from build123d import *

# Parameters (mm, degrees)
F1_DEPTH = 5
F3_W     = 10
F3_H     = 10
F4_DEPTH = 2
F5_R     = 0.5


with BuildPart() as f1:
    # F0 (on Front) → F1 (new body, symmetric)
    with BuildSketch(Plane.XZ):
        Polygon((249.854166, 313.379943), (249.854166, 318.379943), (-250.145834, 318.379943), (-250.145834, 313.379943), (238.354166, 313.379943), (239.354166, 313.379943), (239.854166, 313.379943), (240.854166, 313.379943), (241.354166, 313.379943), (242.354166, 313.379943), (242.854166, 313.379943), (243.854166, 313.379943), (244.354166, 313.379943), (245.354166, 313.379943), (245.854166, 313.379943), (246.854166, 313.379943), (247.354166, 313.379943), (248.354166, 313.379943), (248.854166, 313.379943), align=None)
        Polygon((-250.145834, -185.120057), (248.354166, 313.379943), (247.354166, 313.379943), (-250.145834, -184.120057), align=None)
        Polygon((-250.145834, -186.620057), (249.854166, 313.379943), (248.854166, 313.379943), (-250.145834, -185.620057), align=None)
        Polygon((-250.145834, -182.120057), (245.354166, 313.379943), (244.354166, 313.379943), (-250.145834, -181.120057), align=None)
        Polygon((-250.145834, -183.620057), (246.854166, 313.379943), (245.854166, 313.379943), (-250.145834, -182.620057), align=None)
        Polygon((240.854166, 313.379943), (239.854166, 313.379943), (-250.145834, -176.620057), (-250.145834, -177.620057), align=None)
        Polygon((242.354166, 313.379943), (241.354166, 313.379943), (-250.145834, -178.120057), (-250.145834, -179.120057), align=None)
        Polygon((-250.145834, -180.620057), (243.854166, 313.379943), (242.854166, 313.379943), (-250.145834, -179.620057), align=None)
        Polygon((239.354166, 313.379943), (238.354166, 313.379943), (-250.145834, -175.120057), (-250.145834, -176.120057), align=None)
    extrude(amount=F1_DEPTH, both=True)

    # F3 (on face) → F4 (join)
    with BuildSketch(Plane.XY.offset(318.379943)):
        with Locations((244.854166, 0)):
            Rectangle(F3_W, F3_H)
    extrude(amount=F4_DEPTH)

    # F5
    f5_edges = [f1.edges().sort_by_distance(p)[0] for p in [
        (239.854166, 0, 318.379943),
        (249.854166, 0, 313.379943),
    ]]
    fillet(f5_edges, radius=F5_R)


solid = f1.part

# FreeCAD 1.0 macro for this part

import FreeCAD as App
import Part
import Sketcher
from FreeCAD import Vector
Q = App.Units.Quantity


def edges_at(feature, points):
    """Names of the edges that pass closest to the given points."""
    edges = feature.Shape.Edges
    near = lambda p: min(range(len(edges)), key=lambda i: edges[i].distToShape(Part.Vertex(*p))[0])
    return sorted({f"Edge{near(p) + 1}" for p in points})


def add_polygon(sketch, points):
    """Adds a closed chain of lines whose ends are joined by coincident constraints."""
    first, n = sketch.GeometryCount, len(points)
    for a, b in zip(points, points[1:] + points[:1]):
        sketch.addGeometry(Part.LineSegment(App.Vector(*a, 0), App.Vector(*b, 0)), False)
    for i in range(n):
        sketch.addConstraint(Sketcher.Constraint("Coincident", first + i, 2, first + (i + 1) % n, 1))

doc = App.newDocument("Part")
body = doc.addObject("PartDesign::Body", "Body")

sketch1 = body.newObject("Sketcher::SketchObject", "Sketch")
sketch1.AttachmentSupport = (doc.getObject("XZ_Plane"), [""])
sketch1.MapMode = "FlatFace"
add_polygon(sketch1, [(249.9, 313.4), (249.9, 318.4), (-250.1, 318.4), (-250.1, 313.4), (238.4, 313.4), (-250.1, -175.1), (-250.1, -176.1), (239.4, 313.4), (239.9, 313.4), (-250.1, -176.6), (-250.1, -177.6), (240.9, 313.4), (241.4, 313.4), (-250.1, -178.1), (-250.1, -179.1), (242.4, 313.4), (242.9, 313.4), (-250.1, -179.6), (-250.1, -180.6), (243.9, 313.4), (244.4, 313.4), (-250.1, -181.1), (-250.1, -182.1), (245.4, 313.4), (245.9, 313.4), (-250.1, -182.6), (-250.1, -183.6), (246.9, 313.4), (247.4, 313.4), (-250.1, -184.1), (-250.1, -185.1), (248.4, 313.4), (248.9, 313.4), (-250.1, -185.6), (-250.1, -186.6)])
sketch1.addConstraint([
    Sketcher.Constraint("Vertical", 0),
    Sketcher.Constraint("Horizontal", 1),
    Sketcher.Constraint("Vertical", 2),
    Sketcher.Constraint("Horizontal", 3),
    Sketcher.Constraint("Vertical", 5),
    Sketcher.Constraint("Horizontal", 7),
    Sketcher.Constraint("Vertical", 9),
    Sketcher.Constraint("Horizontal", 11),
    Sketcher.Constraint("Vertical", 13),
    Sketcher.Constraint("Horizontal", 15),
    Sketcher.Constraint("Vertical", 17),
    Sketcher.Constraint("Horizontal", 19),
    Sketcher.Constraint("Vertical", 21),
    Sketcher.Constraint("Horizontal", 23),
    Sketcher.Constraint("Vertical", 25),
    Sketcher.Constraint("Horizontal", 27),
    Sketcher.Constraint("Vertical", 29),
    Sketcher.Constraint("Horizontal", 31),
    Sketcher.Constraint("Vertical", 33),
    Sketcher.Constraint("Parallel", 4, 6),
    Sketcher.Constraint("Parallel", 6, 8),
    Sketcher.Constraint("Parallel", 8, 10),
    Sketcher.Constraint("Parallel", 10, 12),
    Sketcher.Constraint("Parallel", 12, 14),
    Sketcher.Constraint("Parallel", 14, 16),
    Sketcher.Constraint("Parallel", 16, 18),
    Sketcher.Constraint("Parallel", 18, 20),
    Sketcher.Constraint("Parallel", 20, 22),
    Sketcher.Constraint("Parallel", 22, 24),
    Sketcher.Constraint("Parallel", 24, 26),
    Sketcher.Constraint("Parallel", 26, 28),
    Sketcher.Constraint("Parallel", 28, 30),
    Sketcher.Constraint("Parallel", 30, 32),
    Sketcher.Constraint("Parallel", 32, 34),
    Sketcher.Constraint("Horizontal", 3, 2, 6, 2),
    Sketcher.Constraint("Horizontal", 7, 2, 10, 2),
    Sketcher.Constraint("Horizontal", 11, 2, 14, 2),
    Sketcher.Constraint("Horizontal", 15, 2, 18, 2),
    Sketcher.Constraint("Horizontal", 19, 2, 22, 2),
    Sketcher.Constraint("Horizontal", 23, 2, 26, 2),
    Sketcher.Constraint("Horizontal", 27, 2, 30, 2),
    Sketcher.Constraint("Horizontal", 31, 2, 34, 2),
    Sketcher.Constraint("Vertical", 2, 2, 4, 2),
    Sketcher.Constraint("Vertical", 5, 2, 8, 2),
    Sketcher.Constraint("Vertical", 9, 2, 12, 2),
    Sketcher.Constraint("Vertical", 13, 2, 16, 2),
    Sketcher.Constraint("Vertical", 17, 2, 20, 2),
    Sketcher.Constraint("Vertical", 21, 2, 24, 2),
    Sketcher.Constraint("Vertical", 25, 2, 28, 2),
    Sketcher.Constraint("Vertical", 29, 2, 32, 2),
    Sketcher.Constraint("Equal", 7, 11),
    Sketcher.Constraint("Equal", 11, 15),
    Sketcher.Constraint("Equal", 15, 19),
    Sketcher.Constraint("Equal", 19, 23),
    Sketcher.Constraint("Equal", 23, 27),
    Sketcher.Constraint("Equal", 27, 31),
    Sketcher.Constraint("Equal", 5, 9),
    Sketcher.Constraint("Equal", 9, 13),
    Sketcher.Constraint("Equal", 13, 17),
    Sketcher.Constraint("Equal", 17, 21),
    Sketcher.Constraint("Equal", 21, 25),
    Sketcher.Constraint("Equal", 25, 29),
    Sketcher.Constraint("Equal", 29, 33),
    Sketcher.Constraint("DistanceX", 1, 2, 1, 1, Q("500 mm")),
    Sketcher.Constraint("DistanceY", 0, 1, 0, 2, Q("5 mm")),
    Sketcher.Constraint("DistanceY", 5, 2, 5, 1, Q("1 mm")),
    Sketcher.Constraint("Angle", 4, Q("-135 deg")),
    Sketcher.Constraint("DistanceX", 3, 1, 3, 2, Q("488.5 mm")),
    Sketcher.Constraint("DistanceX", -1, 1, 0, 2, Q("249.854166 mm")),
    Sketcher.Constraint("DistanceY", -1, 1, 0, 2, Q("318.379943 mm")),
])
pad1 = body.newObject("PartDesign::Pad", "Pad")
pad1.Profile = sketch1
pad1.Length = 10
pad1.Midplane = True

sketch2 = body.newObject("Sketcher::SketchObject", "Sketch001")
sketch2.AttachmentSupport = (doc.getObject("XY_Plane"), [""])
sketch2.MapMode = "FlatFace"
sketch2.AttachmentOffset = App.Placement(Vector(0, 0, 318.379943), App.Rotation())
add_polygon(sketch2, [(240, 5), (240, -5), (250, -5), (250, 5)])
sketch2.addConstraint([
    Sketcher.Constraint("Vertical", 0),
    Sketcher.Constraint("Horizontal", 1),
    Sketcher.Constraint("Vertical", 2),
    Sketcher.Constraint("Horizontal", 3),
    Sketcher.Constraint("Equal", 3, 0),
    Sketcher.Constraint("DistanceX", 1, 1, 1, 2, Q("10 mm")),
    Sketcher.Constraint("DistanceY", 0, 2, -1, 1, Q("5 mm")),
    Sketcher.Constraint("DistanceX", -1, 1, 0, 2, Q("239.854166 mm")),
])
pad2 = body.newObject("PartDesign::Pad", "Pad001")
pad2.Profile = sketch2
pad2.Length = 2
doc.recompute()

fillet = body.newObject("PartDesign::Fillet", "Fillet")
fillet.Base = (pad2, edges_at(pad2, [(239.854, 0, 318.38), (249.854, 0, 313.38)]))
fillet.Radius = 0.5

doc.recompute()
